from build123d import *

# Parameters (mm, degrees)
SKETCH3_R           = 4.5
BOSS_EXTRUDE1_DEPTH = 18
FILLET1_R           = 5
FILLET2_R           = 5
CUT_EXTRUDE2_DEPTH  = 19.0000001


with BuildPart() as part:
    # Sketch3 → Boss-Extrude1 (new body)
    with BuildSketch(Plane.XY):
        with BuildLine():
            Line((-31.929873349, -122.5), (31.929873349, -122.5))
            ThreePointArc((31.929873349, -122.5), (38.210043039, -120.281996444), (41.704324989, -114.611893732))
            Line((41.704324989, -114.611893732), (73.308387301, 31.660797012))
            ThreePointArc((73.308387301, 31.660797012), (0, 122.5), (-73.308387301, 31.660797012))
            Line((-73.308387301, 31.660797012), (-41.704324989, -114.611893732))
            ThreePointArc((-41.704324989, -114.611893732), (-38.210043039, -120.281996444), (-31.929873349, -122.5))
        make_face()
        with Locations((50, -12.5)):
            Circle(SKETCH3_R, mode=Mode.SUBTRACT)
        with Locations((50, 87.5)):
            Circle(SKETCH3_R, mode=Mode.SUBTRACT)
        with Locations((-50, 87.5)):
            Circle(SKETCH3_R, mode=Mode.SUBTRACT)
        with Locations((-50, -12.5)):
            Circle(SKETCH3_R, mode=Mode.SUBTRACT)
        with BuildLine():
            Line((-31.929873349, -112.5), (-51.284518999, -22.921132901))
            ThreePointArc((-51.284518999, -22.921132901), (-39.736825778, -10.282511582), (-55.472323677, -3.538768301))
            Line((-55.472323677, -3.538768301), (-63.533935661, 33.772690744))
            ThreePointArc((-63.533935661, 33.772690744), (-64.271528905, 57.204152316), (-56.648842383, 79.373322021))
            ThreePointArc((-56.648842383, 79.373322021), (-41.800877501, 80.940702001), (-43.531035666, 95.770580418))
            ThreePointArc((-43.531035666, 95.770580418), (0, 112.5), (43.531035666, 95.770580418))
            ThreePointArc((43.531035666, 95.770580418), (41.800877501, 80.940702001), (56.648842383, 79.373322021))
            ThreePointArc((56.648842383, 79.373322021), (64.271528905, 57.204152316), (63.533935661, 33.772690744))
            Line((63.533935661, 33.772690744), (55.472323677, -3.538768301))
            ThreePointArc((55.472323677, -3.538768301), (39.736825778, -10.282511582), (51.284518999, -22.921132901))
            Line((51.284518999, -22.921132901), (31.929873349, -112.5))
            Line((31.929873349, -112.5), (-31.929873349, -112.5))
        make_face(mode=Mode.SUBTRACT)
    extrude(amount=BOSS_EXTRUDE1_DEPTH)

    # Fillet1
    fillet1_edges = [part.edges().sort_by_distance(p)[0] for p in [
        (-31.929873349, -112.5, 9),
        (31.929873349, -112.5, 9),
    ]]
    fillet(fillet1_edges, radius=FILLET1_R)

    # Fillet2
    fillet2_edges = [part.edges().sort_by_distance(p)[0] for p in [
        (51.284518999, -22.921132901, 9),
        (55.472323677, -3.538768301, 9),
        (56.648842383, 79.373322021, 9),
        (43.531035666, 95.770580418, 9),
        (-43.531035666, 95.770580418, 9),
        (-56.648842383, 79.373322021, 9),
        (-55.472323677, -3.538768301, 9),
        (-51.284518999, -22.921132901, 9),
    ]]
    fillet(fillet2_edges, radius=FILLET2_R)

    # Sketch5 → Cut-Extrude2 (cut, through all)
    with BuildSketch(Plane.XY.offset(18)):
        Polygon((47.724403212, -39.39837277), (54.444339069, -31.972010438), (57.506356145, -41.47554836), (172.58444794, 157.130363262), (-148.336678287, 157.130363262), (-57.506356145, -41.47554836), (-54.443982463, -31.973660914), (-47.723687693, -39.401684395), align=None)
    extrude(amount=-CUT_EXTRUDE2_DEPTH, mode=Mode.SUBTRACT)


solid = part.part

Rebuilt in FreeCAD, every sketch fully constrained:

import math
import FreeCAD as App
import Part
import Sketcher

V = App.Vector
Q = App.Units.Quantity


def edges_at(feature, points):
    """Names of the edges that pass closest to the given points."""
    edges = feature.Shape.Edges
    near = lambda p: min(range(len(edges)), key=lambda i: edges[i].distToShape(Part.Vertex(*p))[0])
    return sorted({f"Edge{near(p) + 1}" for p in points})


def add_polygon(sketch, points):
    """Adds a closed chain of lines whose ends are joined by coincident constraints."""
    first, n = sketch.GeometryCount, len(points)
    for a, b in zip(points, points[1:] + points[:1]):
        sketch.addGeometry(Part.LineSegment(App.Vector(*a, 0), App.Vector(*b, 0)), False)
    for i in range(n):
        sketch.addConstraint(Sketcher.Constraint("Coincident", first + i, 2, first + (i + 1) % n, 1))

doc = App.newDocument("Part")
body = doc.addObject("PartDesign::Body", "Body")

# Sketch on XY plane
sketch1 = doc.addObject("Sketcher::SketchObject", "Sketch")
body.addObject(sketch1)
sketch1.AttachmentSupport = (doc.XY_Plane, [""])
sketch1.MapMode = "FlatFace"
sketch1.addGeometry(Part.LineSegment(V(-31.9, -122.5, 0), V(31.9, -122.5, 0)), False)
sketch1.addGeometry(Part.ArcOfCircle(Part.Circle(V(31.9, -112.5, 0), V(0, 0, 1), 10), math.radians(-90), math.radians(-12)), False)
sketch1.addGeometry(Part.LineSegment(V(41.7, -114.6, 0), V(73.3, 31.7, 0)), False)
sketch1.addGeometry(Part.ArcOfCircle(Part.Circle(V(0, 47.5, 0), V(0, 0, 1), 75), math.radians(-12), math.radians(192)), False)
sketch1.addGeometry(Part.LineSegment(V(-73.3, 31.7, 0), V(-41.7, -114.6, 0)), False)
sketch1.addGeometry(Part.ArcOfCircle(Part.Circle(V(-31.9, -112.5, 0), V(0, 0, 1), 10), math.radians(-168), math.radians(-90)), False)
sketch1.addGeometry(Part.Circle(V(-50, -12.5, 0), V(0, 0, 1), 4.5), False)
sketch1.addGeometry(Part.LineSegment(V(31.9, -112.5, 0), V(-31.9, -112.5, 0)), False)
sketch1.addGeometry(Part.LineSegment(V(-31.9, -112.5, 0), V(-51.3, -22.9, 0)), False)
sketch1.addGeometry(Part.ArcOfCircle(Part.Circle(V(-50, -12.5, 0), V(0, 0, 1), 10.5), math.radians(-97), math.radians(121)), False)
sketch1.addGeometry(Part.LineSegment(V(-55.5, -3.5, 0), V(-63.5, 33.8, 0)), False)
sketch1.addGeometry(Part.ArcOfCircle(Part.Circle(V(0, 47.5, 0), V(0, 0, 1), 65), math.radians(151), math.radians(192)), False)
sketch1.addGeometry(Part.ArcOfCircle(Part.Circle(V(-50, 87.5, 0), V(0, 0, 1), 10.5), math.radians(-129), math.radians(52)), False)
sketch1.addGeometry(Part.ArcOfCircle(Part.Circle(V(0, 47.5, 0), V(0, 0, 1), 65), math.radians(48), math.radians(132)), False)
sketch1.addGeometry(Part.ArcOfCircle(Part.Circle(V(50, 87.5, 0), V(0, 0, 1), 10.5), math.radians(128), math.radians(309)), False)
sketch1.addGeometry(Part.ArcOfCircle(Part.Circle(V(0, 47.5, 0), V(0, 0, 1), 65), math.radians(-12), math.radians(29)), False)
sketch1.addGeometry(Part.LineSegment(V(63.5, 33.8, 0), V(55.5, -3.5, 0)), False)
sketch1.addGeometry(Part.ArcOfCircle(Part.Circle(V(50, -12.5, 0), V(0, 0, 1), 10.5), math.radians(59), math.radians(277)), False)
sketch1.addGeometry(Part.LineSegment(V(51.3, -22.9, 0), V(31.9, -112.5, 0)), False)
sketch1.addGeometry(Part.Circle(V(50, -12.5, 0), V(0, 0, 1), 4.5), False)
sketch1.addGeometry(Part.Circle(V(-50, 87.5, 0), V(0, 0, 1), 4.5), False)
sketch1.addGeometry(Part.Circle(V(50, 87.5, 0), V(0, 0, 1), 4.5), False)
sketch1.addConstraint(Sketcher.Constraint("Tangent", 0, 2, 1, 1))
sketch1.addConstraint(Sketcher.Constraint("Tangent", 1, 2, 2, 1))
sketch1.addConstraint(Sketcher.Constraint("Tangent", 2, 2, 3, 1))
sketch1.addConstraint(Sketcher.Constraint("Tangent", 3, 2, 4, 1))
sketch1.addConstraint(Sketcher.Constraint("Tangent", 4, 2, 5, 1))
sketch1.addConstraint(Sketcher.Constraint("Tangent", 5, 2, 0, 1))
sketch1.addConstraint(Sketcher.Constraint("Coincident", 7, 2, 8, 1))
sketch1.addConstraint(Sketcher.Constraint("Coincident", 8, 2, 9, 1))
sketch1.addConstraint(Sketcher.Constraint("Coincident", 9, 2, 10, 1))
sketch1.addConstraint(Sketcher.Constraint("Tangent", 10, 2, 11, 2))
sketch1.addConstraint(Sketcher.Constraint("Coincident", 11, 1, 12, 1))
sketch1.addConstraint(Sketcher.Constraint("Coincident", 12, 2, 13, 2))
sketch1.addConstraint(Sketcher.Constraint("Coincident", 13, 1, 14, 1))
sketch1.addConstraint(Sketcher.Constraint("Coincident", 14, 2, 15, 2))
sketch1.addConstraint(Sketcher.Constraint("Tangent", 15, 1, 16, 1))
sketch1.addConstraint(Sketcher.Constraint("Coincident", 16, 2, 17, 1))
sketch1.addConstraint(Sketcher.Constraint("Coincident", 17, 2, 18, 1))
sketch1.addConstraint(Sketcher.Constraint("Coincident", 18, 2, 7, 1))
sketch1.addConstraint(Sketcher.Constraint("Horizontal", 0))
sketch1.addConstraint(Sketcher.Constraint("Horizontal", 7))
sketch1.addConstraint(Sketcher.Constraint("Coincident", 9, 3, 6, 3))
sketch1.addConstraint(Sketcher.Constraint("Coincident", 11, 3, 3, 3))
sketch1.addConstraint(Sketcher.Constraint("Coincident", 13, 3, 3, 3))
sketch1.addConstraint(Sketcher.Constraint("Coincident", 15, 3, 3, 3))
sketch1.addConstraint(Sketcher.Constraint("Coincident", 19, 3, 17, 3))
sketch1.addConstraint(Sketcher.Constraint("Coincident", 20, 3, 12, 3))
sketch1.addConstraint(Sketcher.Constraint("Coincident", 21, 3, 14, 3))
sketch1.addConstraint(Sketcher.Constraint("Coincident", 7, 2, 5, 3))
sketch1.addConstraint(Sketcher.Constraint("Coincident", 18, 2, 1, 3))
sketch1.addConstraint(Sketcher.Constraint("Equal", 9, 12))
sketch1.addConstraint(Sketcher.Constraint("Equal", 11, 13))
sketch1.addConstraint(Sketcher.Constraint("Equal", 12, 14))
sketch1.addConstraint(Sketcher.Constraint("Equal", 13, 15))
sketch1.addConstraint(Sketcher.Constraint("Equal", 14, 17))
sketch1.addConstraint(Sketcher.Constraint("Equal", 6, 19))
sketch1.addConstraint(Sketcher.Constraint("Equal", 19, 20))
sketch1.addConstraint(Sketcher.Constraint("Equal", 20, 21))
sketch1.addConstraint(Sketcher.Constraint("Symmetric", 12, 3, 14, 3, -2))
sketch1.addConstraint(Sketcher.Constraint("Symmetric", 6, 3, 17, 3, -2))
sketch1.addConstraint(Sketcher.Constraint("Symmetric", 2, 2, 3, 2, -2))
sketch1.addConstraint(Sketcher.Constraint("Parallel", 4, 8))
sketch1.addConstraint(Sketcher.Constraint("Parallel", 8, 10))
sketch1.addConstraint(Sketcher.Constraint("Parallel", 2, 16))
sketch1.addConstraint(Sketcher.Constraint("Parallel", 16, 18))
sketch1.addConstraint(Sketcher.Constraint("Vertical", 9, 3, 12, 3))
sketch1.addConstraint(Sketcher.Constraint("Diameter", 6, Q("9 mm")))
sketch1.addConstraint(Sketcher.Constraint("Radius", 1, Q("10 mm")))
sketch1.addConstraint(Sketcher.Constraint("Radius", 3, Q("75 mm")))
sketch1.addConstraint(Sketcher.Constraint("Radius", 11, Q("65 mm")))
sketch1.addConstraint(Sketcher.Constraint("Radius", 9, Q("10.5 mm")))
sketch1.addConstraint(Sketcher.Constraint("DistanceX", 6, 3, -1, 1, Q("50 mm")))
sketch1.addConstraint(Sketcher.Constraint("DistanceY", 1, 3, 3, 3, Q("160 mm")))
sketch1.addConstraint(Sketcher.Constraint("DistanceY", 6, 3, 3, 3, Q("60 mm")))
sketch1.addConstraint(Sketcher.Constraint("DistanceY", 3, 3, 12, 3, Q("40 mm")))
sketch1.addConstraint(Sketcher.Constraint("DistanceY", 1, 3, -1, 1, Q("112.5 mm")))
sketch1.addConstraint(Sketcher.Constraint("DistanceX", 5, 3, 1, 2, Q("73.634198 mm")))
pad1 = doc.addObject("PartDesign::Pad", "Pad")
body.addObject(pad1)
pad1.Profile = sketch1
pad1.Length = 18
doc.recompute()

fillet = doc.addObject("PartDesign::Fillet", "Fillet")
body.addObject(fillet)
fillet.Base = (pad1, edges_at(pad1, [(-31.93, -112.5, 9), (31.93, -112.5, 9)]))
fillet.Radius = 5
doc.recompute()

fillet2 = doc.addObject("PartDesign::Fillet", "Fillet001")
body.addObject(fillet2)
fillet2.Base = (fillet, edges_at(fillet, [
    (51.285, -22.921, 9),
    (55.472, -3.539, 9),
    (56.649, 79.373, 9),
    (43.531, 95.771, 9),
    (-43.531, 95.771, 9),
    (-56.649, 79.373, 9),
    (-55.472, -3.539, 9),
    (-51.285, -22.921, 9),
]))
fillet2.Radius = 5

# Sketch on XY plane
sketch2 = doc.addObject("Sketcher::SketchObject", "Sketch001")
body.addObject(sketch2)
sketch2.AttachmentSupport = (doc.XY_Plane, [""])
sketch2.MapMode = "FlatFace"
sketch2.AttachmentOffset = App.Placement(V(0, 0, 18), App.Rotation())
add_polygon(sketch2, [(48, -39), (54, -32), (58, -41), (173, 157), (-148, 157), (-58, -41), (-54, -32), (-48, -39)])  # lines 0-7
sketch2.addConstraint(Sketcher.Constraint("Horizontal", 3))
sketch2.addConstraint(Sketcher.Constraint("Symmetric", 1, 2, 4, 2, -2))
sketch2.addConstraint(Sketcher.Constraint("Distance", 2, Q("229.537089 mm")))
sketch2.addConstraint(Sketcher.Constraint("Distance", 6, Q("10.01688 mm")))
sketch2.addConstraint(Sketcher.Constraint("Distance", 7, Q("95.448091 mm")))
sketch2.addConstraint(Sketcher.Constraint("DistanceX", 3, 2, 3, 1, Q("320.921126 mm")))
sketch2.addConstraint(Sketcher.Constraint("DistanceX", -1, 1, 0, 2, Q("54.444339 mm")))
sketch2.addConstraint(Sketcher.Constraint("DistanceY", 0, 2, -1, 1, Q("31.97201 mm")))
sketch2.addConstraint(Sketcher.Constraint("DistanceY", 1, 2, -1, 1, Q("41.475548 mm")))
sketch2.addConstraint(Sketcher.Constraint("DistanceX", 3, 2, -1, 1, Q("148.336678 mm")))
sketch2.addConstraint(Sketcher.Constraint("DistanceY", 5, 2, -1, 1, Q("31.973661 mm")))
sketch2.addConstraint(Sketcher.Constraint("DistanceX", 1, 2, 2, 2, Q("115.078092 mm")))
sketch2.addConstraint(Sketcher.Constraint("DistanceX", 5, 2, 0, 2, Q("108.888322 mm")))
sketch2.addConstraint(Sketcher.Constraint("DistanceX", 4, 2, 6, 2, Q("9.782668 mm")))
sketch2.addConstraint(Sketcher.Constraint("DistanceY", 6, 2, 7, 2, Q("0.003312 mm")))
pocket1 = doc.addObject("PartDesign::Pocket", "Pocket")
body.addObject(pocket1)
pocket1.Profile = sketch2
pocket1.Type = "ThroughAll"

doc.recompute()
